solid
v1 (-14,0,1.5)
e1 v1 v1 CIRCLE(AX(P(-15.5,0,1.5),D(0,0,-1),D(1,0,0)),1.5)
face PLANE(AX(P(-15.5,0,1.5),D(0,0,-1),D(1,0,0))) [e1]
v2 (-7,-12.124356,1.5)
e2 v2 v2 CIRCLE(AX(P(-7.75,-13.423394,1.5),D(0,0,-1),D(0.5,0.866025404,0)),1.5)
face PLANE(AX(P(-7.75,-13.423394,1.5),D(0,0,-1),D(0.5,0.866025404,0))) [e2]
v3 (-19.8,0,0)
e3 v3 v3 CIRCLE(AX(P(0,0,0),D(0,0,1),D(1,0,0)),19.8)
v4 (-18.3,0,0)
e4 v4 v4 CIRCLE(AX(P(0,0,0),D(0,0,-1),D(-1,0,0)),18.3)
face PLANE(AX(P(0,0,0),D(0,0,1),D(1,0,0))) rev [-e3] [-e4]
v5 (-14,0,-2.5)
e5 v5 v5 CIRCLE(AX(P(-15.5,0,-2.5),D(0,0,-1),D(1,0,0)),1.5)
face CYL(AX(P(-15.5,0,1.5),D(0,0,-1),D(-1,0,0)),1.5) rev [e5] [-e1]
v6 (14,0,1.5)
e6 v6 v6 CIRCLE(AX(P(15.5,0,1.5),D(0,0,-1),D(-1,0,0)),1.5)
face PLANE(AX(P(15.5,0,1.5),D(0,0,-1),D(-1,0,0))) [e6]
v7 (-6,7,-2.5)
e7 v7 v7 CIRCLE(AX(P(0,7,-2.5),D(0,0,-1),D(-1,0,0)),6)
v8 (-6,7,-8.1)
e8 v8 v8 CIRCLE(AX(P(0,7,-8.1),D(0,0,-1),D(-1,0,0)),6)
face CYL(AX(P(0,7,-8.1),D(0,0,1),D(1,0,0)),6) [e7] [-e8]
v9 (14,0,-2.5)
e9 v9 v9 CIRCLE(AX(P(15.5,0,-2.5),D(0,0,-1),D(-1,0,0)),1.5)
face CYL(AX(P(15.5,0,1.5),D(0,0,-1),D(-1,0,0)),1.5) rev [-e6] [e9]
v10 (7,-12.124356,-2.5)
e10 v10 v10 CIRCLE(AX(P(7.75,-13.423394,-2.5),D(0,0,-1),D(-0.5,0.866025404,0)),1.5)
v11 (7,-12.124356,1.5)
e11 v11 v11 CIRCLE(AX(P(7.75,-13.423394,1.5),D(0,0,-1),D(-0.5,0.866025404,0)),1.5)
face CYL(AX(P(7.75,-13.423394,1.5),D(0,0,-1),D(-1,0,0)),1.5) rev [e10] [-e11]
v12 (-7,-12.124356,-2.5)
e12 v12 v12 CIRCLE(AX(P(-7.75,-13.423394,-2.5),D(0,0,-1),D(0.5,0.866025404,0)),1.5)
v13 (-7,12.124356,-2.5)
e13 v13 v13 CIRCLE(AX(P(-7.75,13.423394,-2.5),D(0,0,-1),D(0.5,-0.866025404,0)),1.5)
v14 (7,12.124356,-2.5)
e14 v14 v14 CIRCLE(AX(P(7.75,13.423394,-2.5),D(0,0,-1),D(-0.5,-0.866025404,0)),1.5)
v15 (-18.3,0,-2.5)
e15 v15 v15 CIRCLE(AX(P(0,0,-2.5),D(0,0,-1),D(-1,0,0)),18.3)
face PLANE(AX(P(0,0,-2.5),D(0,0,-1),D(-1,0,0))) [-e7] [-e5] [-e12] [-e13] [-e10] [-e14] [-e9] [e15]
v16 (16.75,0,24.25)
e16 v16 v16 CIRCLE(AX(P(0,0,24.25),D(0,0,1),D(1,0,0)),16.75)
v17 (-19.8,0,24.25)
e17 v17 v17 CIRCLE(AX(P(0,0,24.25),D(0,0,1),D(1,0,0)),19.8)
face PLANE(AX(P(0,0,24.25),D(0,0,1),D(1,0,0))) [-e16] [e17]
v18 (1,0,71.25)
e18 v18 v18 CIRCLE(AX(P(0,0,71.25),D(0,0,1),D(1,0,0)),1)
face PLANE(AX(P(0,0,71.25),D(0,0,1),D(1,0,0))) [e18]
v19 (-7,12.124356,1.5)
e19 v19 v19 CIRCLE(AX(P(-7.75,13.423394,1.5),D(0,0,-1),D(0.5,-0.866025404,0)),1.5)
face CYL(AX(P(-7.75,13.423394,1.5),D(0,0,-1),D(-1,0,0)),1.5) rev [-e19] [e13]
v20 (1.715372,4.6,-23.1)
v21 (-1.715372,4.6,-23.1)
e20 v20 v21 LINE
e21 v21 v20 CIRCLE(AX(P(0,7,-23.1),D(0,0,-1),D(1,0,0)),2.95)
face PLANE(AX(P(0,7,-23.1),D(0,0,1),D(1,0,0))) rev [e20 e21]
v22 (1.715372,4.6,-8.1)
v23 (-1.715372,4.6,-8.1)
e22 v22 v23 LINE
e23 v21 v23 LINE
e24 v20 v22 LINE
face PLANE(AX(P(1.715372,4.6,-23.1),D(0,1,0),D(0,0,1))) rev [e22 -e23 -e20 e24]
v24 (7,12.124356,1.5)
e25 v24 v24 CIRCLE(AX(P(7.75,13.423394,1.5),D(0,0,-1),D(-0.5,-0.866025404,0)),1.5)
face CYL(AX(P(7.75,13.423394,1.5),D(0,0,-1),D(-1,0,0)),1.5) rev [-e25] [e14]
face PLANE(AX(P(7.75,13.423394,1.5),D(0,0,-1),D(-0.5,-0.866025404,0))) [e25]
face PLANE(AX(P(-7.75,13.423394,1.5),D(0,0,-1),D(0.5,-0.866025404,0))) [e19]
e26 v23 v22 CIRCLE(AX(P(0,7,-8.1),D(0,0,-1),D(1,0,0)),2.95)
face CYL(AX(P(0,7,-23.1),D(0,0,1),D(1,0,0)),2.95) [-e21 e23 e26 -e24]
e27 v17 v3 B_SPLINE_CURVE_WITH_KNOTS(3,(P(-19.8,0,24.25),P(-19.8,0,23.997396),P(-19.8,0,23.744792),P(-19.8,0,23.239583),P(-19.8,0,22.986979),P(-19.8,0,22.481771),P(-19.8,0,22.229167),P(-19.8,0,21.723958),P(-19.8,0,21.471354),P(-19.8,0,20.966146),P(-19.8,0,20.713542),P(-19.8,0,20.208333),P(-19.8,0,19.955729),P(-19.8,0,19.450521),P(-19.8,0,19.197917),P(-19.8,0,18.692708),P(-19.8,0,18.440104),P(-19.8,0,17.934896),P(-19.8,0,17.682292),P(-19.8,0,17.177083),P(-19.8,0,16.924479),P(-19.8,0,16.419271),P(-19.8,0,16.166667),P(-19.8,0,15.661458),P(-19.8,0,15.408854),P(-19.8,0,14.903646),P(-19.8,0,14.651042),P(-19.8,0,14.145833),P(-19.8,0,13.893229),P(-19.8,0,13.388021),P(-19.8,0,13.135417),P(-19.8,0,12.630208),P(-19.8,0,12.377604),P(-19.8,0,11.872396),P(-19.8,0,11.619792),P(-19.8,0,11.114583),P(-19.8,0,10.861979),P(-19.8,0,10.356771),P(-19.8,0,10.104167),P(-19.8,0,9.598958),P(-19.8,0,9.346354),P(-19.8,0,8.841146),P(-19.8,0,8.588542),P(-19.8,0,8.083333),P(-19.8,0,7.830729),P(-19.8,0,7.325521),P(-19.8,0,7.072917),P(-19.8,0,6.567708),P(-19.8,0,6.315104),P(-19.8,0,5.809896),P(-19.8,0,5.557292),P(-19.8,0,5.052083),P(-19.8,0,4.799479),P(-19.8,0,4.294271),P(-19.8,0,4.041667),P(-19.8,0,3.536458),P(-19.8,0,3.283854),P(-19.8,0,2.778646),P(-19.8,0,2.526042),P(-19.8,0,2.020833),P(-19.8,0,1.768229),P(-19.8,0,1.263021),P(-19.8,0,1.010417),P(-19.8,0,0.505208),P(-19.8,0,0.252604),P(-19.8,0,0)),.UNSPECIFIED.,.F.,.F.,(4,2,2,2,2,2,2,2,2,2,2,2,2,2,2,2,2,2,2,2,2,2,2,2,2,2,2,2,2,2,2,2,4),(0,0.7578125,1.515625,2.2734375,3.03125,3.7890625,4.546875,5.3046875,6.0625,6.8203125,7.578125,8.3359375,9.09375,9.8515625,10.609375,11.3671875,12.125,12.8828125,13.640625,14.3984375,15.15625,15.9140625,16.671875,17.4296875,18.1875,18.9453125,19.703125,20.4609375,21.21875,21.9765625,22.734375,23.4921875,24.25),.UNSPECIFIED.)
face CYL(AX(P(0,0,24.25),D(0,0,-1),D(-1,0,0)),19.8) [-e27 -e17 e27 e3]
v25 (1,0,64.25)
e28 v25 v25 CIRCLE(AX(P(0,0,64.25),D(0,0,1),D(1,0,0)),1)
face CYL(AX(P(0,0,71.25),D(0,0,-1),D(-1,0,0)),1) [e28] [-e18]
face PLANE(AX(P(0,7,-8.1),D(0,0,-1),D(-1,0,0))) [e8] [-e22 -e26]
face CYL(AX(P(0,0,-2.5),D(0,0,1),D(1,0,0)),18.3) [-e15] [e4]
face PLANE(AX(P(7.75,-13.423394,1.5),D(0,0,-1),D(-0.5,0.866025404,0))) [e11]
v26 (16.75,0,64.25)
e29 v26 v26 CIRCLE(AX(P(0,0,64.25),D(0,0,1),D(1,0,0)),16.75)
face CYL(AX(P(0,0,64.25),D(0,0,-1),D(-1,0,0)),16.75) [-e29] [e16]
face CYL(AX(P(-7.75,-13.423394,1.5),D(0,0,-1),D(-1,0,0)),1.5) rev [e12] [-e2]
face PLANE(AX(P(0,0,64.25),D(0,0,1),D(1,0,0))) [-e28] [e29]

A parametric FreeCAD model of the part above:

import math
import FreeCAD as App
import Part
import Sketcher
from FreeCAD import Vector

doc = App.newDocument("Part")
params = doc.addObject("Spreadsheet::Sheet", "Params")
for row, (alias, value) in enumerate([
    ("sketch1_diameter", "39.6 mm"),
    ("pad1_length", "24.25 mm"),
    ("sketch2_diameter", "33.5 mm"),
    ("pad2_length", "40 mm"),
    ("sketch3_diameter", "36.6 mm"),
    ("pad3_length", "2.5 mm"),
    ("sketch4_diameter", "12 mm"),
    ("pad4_length", "5.6 mm"),
    ("sketch5_radius", "2.95 mm"),
    ("pad5_length", "15 mm"),
    ("sketch6_diameter", "3 mm"),
    ("pocket1_length", "4 mm"),
    ("sketch7_diameter", "2 mm"),
    ("pad6_length", "7 mm"),
], start=1):
    params.set(f"A{row}", alias)
    params.set(f"B{row}", "=" + value)
    params.setAlias(f"B{row}", alias)

body = doc.addObject("PartDesign::Body", "Body")

# Sketch on XY plane
sketch1 = body.newObject("Sketcher::SketchObject", "Sketch")
sketch1.AttachmentSupport = (doc.getObject("XY_Plane"), [""])
sketch1.MapMode = "FlatFace"
sketch1.addGeometry(Part.Circle(Vector(0, 0, 0), Vector(0, 0, 1), 20), False)
sketch1.addConstraint([
    Sketcher.Constraint("Coincident", 0, 3, -1, 1),
    Sketcher.Constraint("Diameter", 0, 39.6),
])
sketch1.setExpression("Constraints[1]", "Params.sketch1_diameter")
pad1 = body.newObject("PartDesign::Pad", "Pad")
pad1.Profile = sketch1
pad1.setExpression("Length", "Params.pad1_length")

# Sketch on XY plane
sketch2 = body.newObject("Sketcher::SketchObject", "Sketch001")
sketch2.AttachmentSupport = (doc.getObject("XY_Plane"), [""])
sketch2.MapMode = "FlatFace"
sketch2.AttachmentOffset = App.Placement(Vector(0, 0, 24.25), App.Rotation())
sketch2.addGeometry(Part.Circle(Vector(0, 0, 0), Vector(0, 0, 1), 17), False)
sketch2.addConstraint([
    Sketcher.Constraint("Coincident", 0, 3, -1, 1),
    Sketcher.Constraint("Diameter", 0, 33.5),
])
sketch2.setExpression("Constraints[1]", "Params.sketch2_diameter")
pad2 = body.newObject("PartDesign::Pad", "Pad001")
pad2.Profile = sketch2
pad2.setExpression("Length", "Params.pad2_length")

# Sketch on XY plane
sketch3 = body.newObject("Sketcher::SketchObject", "Sketch002")
sketch3.AttachmentSupport = (doc.getObject("XY_Plane"), [""])
sketch3.MapMode = "FlatFace"
sketch3.addGeometry(Part.Circle(Vector(0, 0, 0), Vector(0, 0, 1), 18), False)
sketch3.addConstraint([
    Sketcher.Constraint("Coincident", 0, 3, -1, 1),
    Sketcher.Constraint("Diameter", 0, 36.6),
])
sketch3.setExpression("Constraints[1]", "Params.sketch3_diameter")
pad3 = body.newObject("PartDesign::Pad", "Pad002")
pad3.Profile = sketch3
pad3.setExpression("Length", "Params.pad3_length")
pad3.Reversed = True

# Sketch on XY plane
sketch4 = body.newObject("Sketcher::SketchObject", "Sketch003")
sketch4.AttachmentSupport = (doc.getObject("XY_Plane"), [""])
sketch4.MapMode = "FlatFace"
sketch4.AttachmentOffset = App.Placement(Vector(0, 0, -2.5), App.Rotation())
sketch4.addGeometry(Part.Circle(Vector(0, 7, 0), Vector(0, 0, 1), 6), False)
sketch4.addConstraint([
    Sketcher.Constraint("PointOnObject", 0, 3, -2),
    Sketcher.Constraint("Diameter", 0, 12.0),
    Sketcher.Constraint("DistanceY", -1, 1, 0, 3, 7.0),
])
sketch4.setExpression("Constraints[1]", "Params.sketch4_diameter")
pad4 = body.newObject("PartDesign::Pad", "Pad003")
pad4.Profile = sketch4
pad4.setExpression("Length", "Params.pad4_length")
pad4.Reversed = True

# Sketch on XY plane
sketch5 = body.newObject("Sketcher::SketchObject", "Sketch004")
sketch5.AttachmentSupport = (doc.getObject("XY_Plane"), [""])
sketch5.MapMode = "FlatFace"
sketch5.AttachmentOffset = App.Placement(Vector(0, 0, -8.1), App.Rotation())
sketch5.addGeometry([
    Part.LineSegment(Vector(1.7, 4.6, 0), Vector(-1.7, 4.6, 0)),
    Part.ArcOfCircle(Part.Circle(Vector(0, 7, 0), Vector(0, 0, 1), 3), math.radians(-54), math.radians(234)),
], False)
sketch5.addConstraint([
    Sketcher.Constraint("Coincident", 0, 1, 1, 1),
    Sketcher.Constraint("Coincident", 1, 2, 0, 2),
    Sketcher.Constraint("Horizontal", 0),
    Sketcher.Constraint("PointOnObject", 1, 3, -2),
    Sketcher.Constraint("Radius", 1, 2.95),
    Sketcher.Constraint("DistanceY", -1, 1, 1, 3, 7.0),
    Sketcher.Constraint("DistanceY", -1, 1, 0, 1, 4.6),
])
sketch5.setExpression("Constraints[4]", "Params.sketch5_radius")
pad5 = body.newObject("PartDesign::Pad", "Pad004")
pad5.Profile = sketch5
pad5.setExpression("Length", "Params.pad5_length")
pad5.Reversed = True

# Sketch on XY plane
sketch6 = body.newObject("Sketcher::SketchObject", "Sketch005")
sketch6.AttachmentSupport = (doc.getObject("XY_Plane"), [""])
sketch6.MapMode = "FlatFace"
sketch6.AttachmentOffset = App.Placement(Vector(0, 0, -2.5), App.Rotation())
sketch6.addGeometry(Part.Circle(Vector(15.5, 0, 0), Vector(0, 0, 1), 1.5), False)
sketch6.addConstraint([
    Sketcher.Constraint("PointOnObject", 0, 3, -1),
    Sketcher.Constraint("Diameter", 0, 3.0),
    Sketcher.Constraint("DistanceX", -1, 1, 0, 3, 15.5),
])
sketch6.setExpression("Constraints[1]", "Params.sketch6_diameter")
pocket1 = body.newObject("PartDesign::Pocket", "Pocket")
pocket1.Profile = sketch6
pocket1.setExpression("Length", "Params.pocket1_length")
pocket1.Reversed = True
doc.recompute()

polarpattern = body.newObject("PartDesign::PolarPattern", "PolarPattern")
polarpattern.Originals = [pocket1]
polarpattern.Axis = (doc.getObject("Z_Axis"), [""])
polarpattern.Angle = 360
polarpattern.Occurrences = 6
body.Tip = polarpattern

# Sketch on XY plane
sketch7 = body.newObject("Sketcher::SketchObject", "Sketch006")
sketch7.AttachmentSupport = (doc.getObject("XY_Plane"), [""])
sketch7.MapMode = "FlatFace"
sketch7.AttachmentOffset = App.Placement(Vector(0, 0, 64.25), App.Rotation())
sketch7.addGeometry(Part.Circle(Vector(0, 0, 0), Vector(0, 0, 1), 1), False)
sketch7.addConstraint([
    Sketcher.Constraint("Coincident", 0, 3, -1, 1),
    Sketcher.Constraint("Diameter", 0, 2.0),
])
sketch7.setExpression("Constraints[1]", "Params.sketch7_diameter")
pad6 = body.newObject("PartDesign::Pad", "Pad005")
pad6.Profile = sketch7
pad6.setExpression("Length", "Params.pad6_length")

doc.recompute()
